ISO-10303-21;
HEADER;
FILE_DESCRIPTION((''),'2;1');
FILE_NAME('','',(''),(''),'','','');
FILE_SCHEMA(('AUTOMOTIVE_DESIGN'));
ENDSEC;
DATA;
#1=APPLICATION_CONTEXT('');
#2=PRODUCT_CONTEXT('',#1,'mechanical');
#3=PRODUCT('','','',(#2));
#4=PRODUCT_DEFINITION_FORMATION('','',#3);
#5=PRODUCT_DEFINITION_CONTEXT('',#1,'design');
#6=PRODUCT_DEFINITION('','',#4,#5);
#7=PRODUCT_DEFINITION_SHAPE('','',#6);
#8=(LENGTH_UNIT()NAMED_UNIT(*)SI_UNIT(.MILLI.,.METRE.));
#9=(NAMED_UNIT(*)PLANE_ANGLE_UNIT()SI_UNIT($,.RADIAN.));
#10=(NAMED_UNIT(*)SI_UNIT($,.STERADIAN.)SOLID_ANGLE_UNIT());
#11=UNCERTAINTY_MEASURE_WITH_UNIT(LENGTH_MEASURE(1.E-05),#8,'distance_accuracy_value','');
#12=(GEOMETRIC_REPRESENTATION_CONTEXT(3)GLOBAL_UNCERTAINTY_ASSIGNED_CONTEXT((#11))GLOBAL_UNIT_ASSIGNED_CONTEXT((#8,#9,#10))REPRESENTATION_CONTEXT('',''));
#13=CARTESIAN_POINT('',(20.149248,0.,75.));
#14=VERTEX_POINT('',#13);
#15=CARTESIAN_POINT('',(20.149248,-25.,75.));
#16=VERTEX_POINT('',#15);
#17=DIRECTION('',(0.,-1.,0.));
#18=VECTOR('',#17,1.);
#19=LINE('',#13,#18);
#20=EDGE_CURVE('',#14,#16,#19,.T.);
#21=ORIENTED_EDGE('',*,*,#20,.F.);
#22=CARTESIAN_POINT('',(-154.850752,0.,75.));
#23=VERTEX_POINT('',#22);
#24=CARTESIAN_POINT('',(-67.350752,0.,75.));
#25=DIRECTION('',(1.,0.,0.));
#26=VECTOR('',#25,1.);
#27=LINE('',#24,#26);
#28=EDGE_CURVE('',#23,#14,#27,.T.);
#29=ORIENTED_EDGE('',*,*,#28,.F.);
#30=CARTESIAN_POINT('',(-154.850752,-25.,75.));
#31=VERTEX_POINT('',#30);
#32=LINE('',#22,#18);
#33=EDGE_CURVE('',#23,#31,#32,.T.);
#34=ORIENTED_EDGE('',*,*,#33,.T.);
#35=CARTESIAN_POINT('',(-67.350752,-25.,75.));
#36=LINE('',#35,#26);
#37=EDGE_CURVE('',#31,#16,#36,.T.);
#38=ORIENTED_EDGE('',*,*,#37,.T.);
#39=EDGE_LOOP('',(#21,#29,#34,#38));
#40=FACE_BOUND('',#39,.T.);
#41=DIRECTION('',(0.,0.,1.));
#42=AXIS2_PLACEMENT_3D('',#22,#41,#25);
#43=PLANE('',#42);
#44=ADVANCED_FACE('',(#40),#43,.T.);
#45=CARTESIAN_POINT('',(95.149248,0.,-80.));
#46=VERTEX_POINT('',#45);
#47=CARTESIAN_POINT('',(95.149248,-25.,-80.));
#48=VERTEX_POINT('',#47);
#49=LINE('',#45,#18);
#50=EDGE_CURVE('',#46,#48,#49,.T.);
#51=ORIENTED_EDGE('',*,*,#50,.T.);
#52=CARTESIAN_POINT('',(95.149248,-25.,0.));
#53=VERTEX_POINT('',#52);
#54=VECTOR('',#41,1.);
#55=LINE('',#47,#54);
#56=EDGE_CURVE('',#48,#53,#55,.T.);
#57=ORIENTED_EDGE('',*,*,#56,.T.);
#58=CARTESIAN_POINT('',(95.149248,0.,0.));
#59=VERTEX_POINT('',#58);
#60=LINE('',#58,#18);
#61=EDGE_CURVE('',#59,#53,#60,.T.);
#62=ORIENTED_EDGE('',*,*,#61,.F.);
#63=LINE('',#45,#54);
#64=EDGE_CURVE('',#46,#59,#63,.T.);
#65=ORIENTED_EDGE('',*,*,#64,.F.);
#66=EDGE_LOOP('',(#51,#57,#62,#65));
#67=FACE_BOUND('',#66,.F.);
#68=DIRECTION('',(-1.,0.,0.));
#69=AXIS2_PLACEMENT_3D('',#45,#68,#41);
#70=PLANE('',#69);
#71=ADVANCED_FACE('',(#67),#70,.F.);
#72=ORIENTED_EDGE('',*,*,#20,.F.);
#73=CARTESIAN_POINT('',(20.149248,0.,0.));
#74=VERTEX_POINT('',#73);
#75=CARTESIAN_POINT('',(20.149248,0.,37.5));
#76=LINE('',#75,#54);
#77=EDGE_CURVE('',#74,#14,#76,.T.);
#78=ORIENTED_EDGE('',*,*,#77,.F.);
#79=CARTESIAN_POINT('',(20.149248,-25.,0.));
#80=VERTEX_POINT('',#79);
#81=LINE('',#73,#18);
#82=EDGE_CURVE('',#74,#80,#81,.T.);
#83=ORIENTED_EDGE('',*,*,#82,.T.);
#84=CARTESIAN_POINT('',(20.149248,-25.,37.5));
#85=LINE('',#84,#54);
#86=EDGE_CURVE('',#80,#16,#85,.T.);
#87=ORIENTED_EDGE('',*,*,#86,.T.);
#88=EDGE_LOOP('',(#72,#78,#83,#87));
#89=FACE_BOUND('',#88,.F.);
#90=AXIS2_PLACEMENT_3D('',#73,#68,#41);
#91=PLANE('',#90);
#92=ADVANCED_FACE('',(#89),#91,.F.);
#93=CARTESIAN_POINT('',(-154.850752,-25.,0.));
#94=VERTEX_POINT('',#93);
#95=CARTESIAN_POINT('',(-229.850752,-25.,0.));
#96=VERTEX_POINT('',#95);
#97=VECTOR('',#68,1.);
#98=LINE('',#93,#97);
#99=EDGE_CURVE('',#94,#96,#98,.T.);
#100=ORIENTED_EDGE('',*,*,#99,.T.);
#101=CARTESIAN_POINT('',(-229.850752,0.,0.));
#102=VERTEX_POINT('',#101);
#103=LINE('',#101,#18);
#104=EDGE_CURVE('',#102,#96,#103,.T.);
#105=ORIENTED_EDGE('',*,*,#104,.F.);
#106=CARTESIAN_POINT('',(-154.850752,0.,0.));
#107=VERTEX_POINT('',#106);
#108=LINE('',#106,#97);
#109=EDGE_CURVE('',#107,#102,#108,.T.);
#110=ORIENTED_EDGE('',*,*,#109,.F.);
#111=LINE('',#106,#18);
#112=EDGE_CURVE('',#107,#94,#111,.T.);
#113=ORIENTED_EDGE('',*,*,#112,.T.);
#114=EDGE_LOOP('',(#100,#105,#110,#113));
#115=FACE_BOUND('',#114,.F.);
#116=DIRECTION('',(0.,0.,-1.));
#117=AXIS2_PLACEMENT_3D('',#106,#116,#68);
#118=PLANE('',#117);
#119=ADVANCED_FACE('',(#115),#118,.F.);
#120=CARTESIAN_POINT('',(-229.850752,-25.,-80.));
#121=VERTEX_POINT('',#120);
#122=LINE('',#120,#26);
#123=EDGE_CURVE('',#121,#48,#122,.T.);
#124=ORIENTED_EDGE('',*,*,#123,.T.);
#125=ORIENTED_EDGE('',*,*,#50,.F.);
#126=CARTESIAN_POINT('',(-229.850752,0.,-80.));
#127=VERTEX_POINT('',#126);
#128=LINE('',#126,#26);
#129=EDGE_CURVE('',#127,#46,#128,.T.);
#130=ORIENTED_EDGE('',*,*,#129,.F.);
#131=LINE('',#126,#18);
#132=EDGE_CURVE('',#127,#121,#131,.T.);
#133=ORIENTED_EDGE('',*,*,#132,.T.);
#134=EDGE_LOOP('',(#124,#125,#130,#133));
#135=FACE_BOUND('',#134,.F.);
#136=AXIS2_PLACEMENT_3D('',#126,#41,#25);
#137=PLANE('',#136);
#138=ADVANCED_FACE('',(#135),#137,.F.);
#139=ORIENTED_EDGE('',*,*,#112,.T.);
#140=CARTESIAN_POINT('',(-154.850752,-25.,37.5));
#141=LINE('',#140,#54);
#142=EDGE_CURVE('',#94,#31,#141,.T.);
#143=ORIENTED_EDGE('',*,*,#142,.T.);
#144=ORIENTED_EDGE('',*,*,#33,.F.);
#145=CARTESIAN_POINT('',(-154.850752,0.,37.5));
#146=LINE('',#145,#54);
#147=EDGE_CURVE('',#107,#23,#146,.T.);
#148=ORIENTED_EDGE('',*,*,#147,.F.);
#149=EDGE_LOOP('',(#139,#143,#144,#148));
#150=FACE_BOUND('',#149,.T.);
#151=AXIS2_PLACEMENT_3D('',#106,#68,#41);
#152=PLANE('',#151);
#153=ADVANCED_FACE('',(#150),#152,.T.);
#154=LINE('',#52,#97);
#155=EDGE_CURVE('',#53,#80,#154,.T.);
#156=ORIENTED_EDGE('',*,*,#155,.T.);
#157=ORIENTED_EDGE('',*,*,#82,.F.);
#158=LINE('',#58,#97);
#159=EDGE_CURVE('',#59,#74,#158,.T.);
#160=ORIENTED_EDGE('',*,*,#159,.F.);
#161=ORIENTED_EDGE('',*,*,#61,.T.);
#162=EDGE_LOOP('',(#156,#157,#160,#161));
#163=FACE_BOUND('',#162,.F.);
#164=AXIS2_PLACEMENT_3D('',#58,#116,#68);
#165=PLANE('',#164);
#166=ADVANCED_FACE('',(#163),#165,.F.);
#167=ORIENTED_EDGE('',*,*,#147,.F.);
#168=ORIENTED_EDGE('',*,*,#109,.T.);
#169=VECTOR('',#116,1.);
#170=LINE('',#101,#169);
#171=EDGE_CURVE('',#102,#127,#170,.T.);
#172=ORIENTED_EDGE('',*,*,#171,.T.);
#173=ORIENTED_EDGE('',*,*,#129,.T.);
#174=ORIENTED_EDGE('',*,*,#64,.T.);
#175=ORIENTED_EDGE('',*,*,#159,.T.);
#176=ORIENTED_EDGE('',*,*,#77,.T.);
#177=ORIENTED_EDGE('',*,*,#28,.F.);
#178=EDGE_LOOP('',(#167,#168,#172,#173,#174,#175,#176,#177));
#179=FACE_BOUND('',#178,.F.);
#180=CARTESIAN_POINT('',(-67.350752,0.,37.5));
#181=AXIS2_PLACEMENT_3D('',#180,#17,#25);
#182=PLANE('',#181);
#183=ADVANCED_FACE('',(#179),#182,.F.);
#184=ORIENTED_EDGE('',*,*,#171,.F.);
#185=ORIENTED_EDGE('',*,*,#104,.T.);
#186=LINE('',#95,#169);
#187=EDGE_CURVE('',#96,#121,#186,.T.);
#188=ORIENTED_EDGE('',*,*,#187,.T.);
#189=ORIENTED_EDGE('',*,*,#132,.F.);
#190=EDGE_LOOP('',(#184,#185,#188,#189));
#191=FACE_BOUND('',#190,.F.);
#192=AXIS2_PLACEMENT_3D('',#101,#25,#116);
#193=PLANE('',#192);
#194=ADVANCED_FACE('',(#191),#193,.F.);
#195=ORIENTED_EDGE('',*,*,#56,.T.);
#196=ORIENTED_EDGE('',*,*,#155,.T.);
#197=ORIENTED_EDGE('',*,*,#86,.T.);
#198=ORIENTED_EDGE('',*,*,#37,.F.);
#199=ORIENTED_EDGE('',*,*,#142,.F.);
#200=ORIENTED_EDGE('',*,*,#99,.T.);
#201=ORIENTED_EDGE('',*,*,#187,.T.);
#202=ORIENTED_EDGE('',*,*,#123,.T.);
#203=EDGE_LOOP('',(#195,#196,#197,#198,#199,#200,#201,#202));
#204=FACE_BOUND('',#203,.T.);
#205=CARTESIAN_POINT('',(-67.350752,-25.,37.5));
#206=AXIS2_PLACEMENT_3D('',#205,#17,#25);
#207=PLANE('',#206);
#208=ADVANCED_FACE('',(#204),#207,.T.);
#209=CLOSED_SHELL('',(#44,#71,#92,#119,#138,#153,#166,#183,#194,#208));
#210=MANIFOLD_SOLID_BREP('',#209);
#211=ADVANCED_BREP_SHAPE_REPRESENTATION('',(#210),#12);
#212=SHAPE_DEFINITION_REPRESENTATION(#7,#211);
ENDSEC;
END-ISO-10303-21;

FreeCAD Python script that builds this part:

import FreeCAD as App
import Part
import Sketcher

V = App.Vector
Q = App.Units.Quantity


def add_polygon(sketch, points):
    """Adds a closed chain of lines whose ends are joined by coincident constraints."""
    first, n = sketch.GeometryCount, len(points)
    for a, b in zip(points, points[1:] + points[:1]):
        sketch.addGeometry(Part.LineSegment(App.Vector(*a, 0), App.Vector(*b, 0)), False)
    for i in range(n):
        sketch.addConstraint(Sketcher.Constraint("Coincident", first + i, 2, first + (i + 1) % n, 1))

doc = App.newDocument("Part")
params = doc.addObject("Spreadsheet::Sheet", "Params")
for row, (alias, value) in enumerate([
    ("sketch1_width", "75 mm"),
    ("sketch1_width2", "325 mm"),
    ("sketch1_height", "80 mm"),
    ("pad1_length", "25 mm"),
], start=1):
    params.set(f"A{row}", alias)
    params.set(f"B{row}", "=" + value)
    params.setAlias(f"B{row}", alias)

body = doc.addObject("PartDesign::Body", "Body")

# Sketch on XZ plane
sketch1 = doc.addObject("Sketcher::SketchObject", "Sketch")
body.addObject(sketch1)
sketch1.AttachmentSupport = (doc.XZ_Plane, [""])
sketch1.MapMode = "FlatFace"
add_polygon(sketch1, [(-155, 75), (-155, 0), (-230, 0), (-230, -80), (95, -80), (95, 0), (20, 0), (20, 75)])  # lines 0-7
sketch1.addConstraint([
    Sketcher.Constraint("Vertical", 0),
    Sketcher.Constraint("Horizontal", 1),
    Sketcher.Constraint("Vertical", 2),
    Sketcher.Constraint("Horizontal", 3),
    Sketcher.Constraint("Vertical", 4),
    Sketcher.Constraint("Horizontal", 5),
    Sketcher.Constraint("Vertical", 6),
    Sketcher.Constraint("Horizontal", 7),
    Sketcher.Constraint("PointOnObject", 0, 2, -1),
    Sketcher.Constraint("PointOnObject", 4, 2, -1),
    Sketcher.Constraint("Equal", 1, 5),
    Sketcher.Constraint("Equal", 5, 0),
    Sketcher.Constraint("DistanceX", 1, 2, 1, 1, Q("75 mm")),
    Sketcher.Constraint("DistanceX", 3, 1, 3, 2, Q("325 mm")),
    Sketcher.Constraint("DistanceY", 2, 2, 2, 1, Q("80 mm")),
    Sketcher.Constraint("DistanceX", 0, 2, -1, 1, Q("154.850752 mm")),
])
sketch1.setExpression("Constraints[20]", "Params.sketch1_width")
sketch1.setExpression("Constraints[21]", "Params.sketch1_width2")
sketch1.setExpression("Constraints[22]", "Params.sketch1_height")
pad1 = doc.addObject("PartDesign::Pad", "Pad")
body.addObject(pad1)
pad1.Profile = sketch1
pad1.setExpression("Length", "Params.pad1_length")

doc.recompute()
